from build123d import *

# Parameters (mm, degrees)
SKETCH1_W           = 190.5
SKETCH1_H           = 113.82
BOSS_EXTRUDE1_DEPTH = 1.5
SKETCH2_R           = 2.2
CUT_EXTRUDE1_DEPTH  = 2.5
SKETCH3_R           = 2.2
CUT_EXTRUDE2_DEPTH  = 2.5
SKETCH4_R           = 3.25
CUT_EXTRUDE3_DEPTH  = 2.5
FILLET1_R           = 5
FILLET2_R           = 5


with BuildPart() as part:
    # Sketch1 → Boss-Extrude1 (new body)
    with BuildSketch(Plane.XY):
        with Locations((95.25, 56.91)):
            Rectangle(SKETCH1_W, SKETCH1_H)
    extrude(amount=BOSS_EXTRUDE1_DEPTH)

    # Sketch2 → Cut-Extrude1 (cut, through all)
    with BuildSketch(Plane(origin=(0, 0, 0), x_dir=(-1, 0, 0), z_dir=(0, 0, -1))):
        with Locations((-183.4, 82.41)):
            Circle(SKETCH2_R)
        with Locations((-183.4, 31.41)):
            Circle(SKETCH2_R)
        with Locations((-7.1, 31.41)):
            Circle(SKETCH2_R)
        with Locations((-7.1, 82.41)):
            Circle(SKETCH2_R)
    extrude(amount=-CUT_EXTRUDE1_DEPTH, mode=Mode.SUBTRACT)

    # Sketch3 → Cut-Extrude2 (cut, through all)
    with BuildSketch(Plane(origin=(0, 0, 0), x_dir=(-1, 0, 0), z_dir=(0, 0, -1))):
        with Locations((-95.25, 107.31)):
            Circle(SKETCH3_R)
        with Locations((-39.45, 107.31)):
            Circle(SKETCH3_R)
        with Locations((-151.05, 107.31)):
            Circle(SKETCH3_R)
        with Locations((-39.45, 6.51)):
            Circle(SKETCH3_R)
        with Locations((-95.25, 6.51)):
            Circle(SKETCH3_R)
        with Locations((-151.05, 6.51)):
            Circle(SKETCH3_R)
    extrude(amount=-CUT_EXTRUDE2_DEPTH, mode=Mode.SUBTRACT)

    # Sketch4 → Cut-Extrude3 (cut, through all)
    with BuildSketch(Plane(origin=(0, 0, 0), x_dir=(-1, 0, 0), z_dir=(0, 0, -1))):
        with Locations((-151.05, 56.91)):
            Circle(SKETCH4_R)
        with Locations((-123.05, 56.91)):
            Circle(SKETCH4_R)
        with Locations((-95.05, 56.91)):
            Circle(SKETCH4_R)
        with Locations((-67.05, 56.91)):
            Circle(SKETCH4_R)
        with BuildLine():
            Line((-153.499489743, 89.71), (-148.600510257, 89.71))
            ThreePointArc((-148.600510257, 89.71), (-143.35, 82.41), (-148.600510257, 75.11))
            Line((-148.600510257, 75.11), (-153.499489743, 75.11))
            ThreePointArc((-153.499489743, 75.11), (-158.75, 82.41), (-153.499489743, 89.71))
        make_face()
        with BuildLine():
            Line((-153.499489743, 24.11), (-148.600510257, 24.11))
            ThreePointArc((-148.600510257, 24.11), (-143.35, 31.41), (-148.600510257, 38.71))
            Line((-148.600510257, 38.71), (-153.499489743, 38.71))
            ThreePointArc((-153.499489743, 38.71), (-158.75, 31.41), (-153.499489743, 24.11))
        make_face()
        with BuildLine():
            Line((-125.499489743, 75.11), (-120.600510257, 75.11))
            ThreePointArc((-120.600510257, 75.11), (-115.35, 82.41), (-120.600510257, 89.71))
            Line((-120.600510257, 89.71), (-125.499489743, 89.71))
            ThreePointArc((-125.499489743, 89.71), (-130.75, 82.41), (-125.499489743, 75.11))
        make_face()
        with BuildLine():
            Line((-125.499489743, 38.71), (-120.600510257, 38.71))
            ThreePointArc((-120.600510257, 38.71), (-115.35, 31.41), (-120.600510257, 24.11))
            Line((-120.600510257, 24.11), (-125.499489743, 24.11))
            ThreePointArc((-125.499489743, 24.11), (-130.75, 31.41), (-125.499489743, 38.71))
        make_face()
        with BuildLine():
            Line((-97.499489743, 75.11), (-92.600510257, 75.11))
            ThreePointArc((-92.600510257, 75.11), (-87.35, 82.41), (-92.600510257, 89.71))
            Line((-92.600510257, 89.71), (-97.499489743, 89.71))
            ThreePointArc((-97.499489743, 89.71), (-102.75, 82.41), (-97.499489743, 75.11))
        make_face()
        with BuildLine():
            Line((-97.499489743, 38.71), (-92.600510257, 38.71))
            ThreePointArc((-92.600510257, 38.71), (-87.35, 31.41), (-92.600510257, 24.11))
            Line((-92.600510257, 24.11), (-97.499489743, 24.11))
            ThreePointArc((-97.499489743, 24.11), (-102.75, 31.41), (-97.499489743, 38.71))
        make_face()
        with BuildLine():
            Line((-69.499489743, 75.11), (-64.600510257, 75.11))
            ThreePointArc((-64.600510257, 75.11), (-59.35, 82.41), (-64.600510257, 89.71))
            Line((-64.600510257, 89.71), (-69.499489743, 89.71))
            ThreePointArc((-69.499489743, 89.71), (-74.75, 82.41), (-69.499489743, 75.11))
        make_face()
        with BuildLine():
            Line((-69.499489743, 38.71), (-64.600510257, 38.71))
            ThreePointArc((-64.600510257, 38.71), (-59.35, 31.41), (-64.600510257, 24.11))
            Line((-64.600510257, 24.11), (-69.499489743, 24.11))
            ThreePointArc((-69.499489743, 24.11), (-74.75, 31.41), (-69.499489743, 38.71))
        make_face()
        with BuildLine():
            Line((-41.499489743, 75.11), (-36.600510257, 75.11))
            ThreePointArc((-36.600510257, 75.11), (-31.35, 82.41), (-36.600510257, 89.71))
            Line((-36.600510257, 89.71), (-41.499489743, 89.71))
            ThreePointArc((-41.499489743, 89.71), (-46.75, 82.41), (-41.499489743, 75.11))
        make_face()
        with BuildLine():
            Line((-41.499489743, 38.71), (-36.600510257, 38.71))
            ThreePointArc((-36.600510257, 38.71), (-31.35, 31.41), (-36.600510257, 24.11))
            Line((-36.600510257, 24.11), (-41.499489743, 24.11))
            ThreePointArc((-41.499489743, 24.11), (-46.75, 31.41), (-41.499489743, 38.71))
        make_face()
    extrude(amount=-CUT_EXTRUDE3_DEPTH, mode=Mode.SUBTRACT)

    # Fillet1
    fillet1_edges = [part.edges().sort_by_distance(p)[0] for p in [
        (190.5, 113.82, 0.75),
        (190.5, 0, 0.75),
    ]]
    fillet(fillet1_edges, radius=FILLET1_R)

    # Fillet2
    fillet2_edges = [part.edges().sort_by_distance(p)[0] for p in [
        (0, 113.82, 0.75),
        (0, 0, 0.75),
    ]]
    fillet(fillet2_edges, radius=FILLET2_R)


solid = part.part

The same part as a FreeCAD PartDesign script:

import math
import FreeCAD as App
import Part
import Sketcher

V = App.Vector
Q = App.Units.Quantity


def edges_at(feature, points):
    """Names of the edges that pass closest to the given points."""
    edges = feature.Shape.Edges
    near = lambda p: min(range(len(edges)), key=lambda i: edges[i].distToShape(Part.Vertex(*p))[0])
    return sorted({f"Edge{near(p) + 1}" for p in points})


def add_polygon(sketch, points):
    """Adds a closed chain of lines whose ends are joined by coincident constraints."""
    first, n = sketch.GeometryCount, len(points)
    for a, b in zip(points, points[1:] + points[:1]):
        sketch.addGeometry(Part.LineSegment(App.Vector(*a, 0), App.Vector(*b, 0)), False)
    for i in range(n):
        sketch.addConstraint(Sketcher.Constraint("Coincident", first + i, 2, first + (i + 1) % n, 1))

doc = App.newDocument("Part")
body = doc.addObject("PartDesign::Body", "Body")

# Sketch on XY plane
sketch1 = body.newObject("Sketcher::SketchObject", "Sketch")
sketch1.AttachmentSupport = (doc.getObject("XY_Plane"), [""])
sketch1.MapMode = "FlatFace"
add_polygon(sketch1, [(0, 114), (0, 0), (190, 0), (190, 114)])  # lines 0-3
sketch1.addConstraint([
    Sketcher.Constraint("Vertical", 0),
    Sketcher.Constraint("Horizontal", 1),
    Sketcher.Constraint("Vertical", 2),
    Sketcher.Constraint("Horizontal", 3),
    Sketcher.Constraint("Coincident", 0, 2, -1, 1),
    Sketcher.Constraint("DistanceX", 1, 1, 1, 2, Q("190.5 mm")),
    Sketcher.Constraint("DistanceY", 0, 2, 0, 1, Q("113.82 mm")),
])
pad1 = body.newObject("PartDesign::Pad", "Pad")
pad1.Profile = sketch1
pad1.Length = 1.5

# Sketch on XY plane
sketch2 = body.newObject("Sketcher::SketchObject", "Sketch001")
sketch2.AttachmentSupport = (doc.getObject("XY_Plane"), [""])
sketch2.MapMode = "FlatFace"
sketch2.addGeometry([
    Part.Circle(V(183.4, 82.4, 0), V(0, 0, 1), 2.2),
    Part.Circle(V(183.4, 31.4, 0), V(0, 0, 1), 2.2),
    Part.Circle(V(7.1, 31.4, 0), V(0, 0, 1), 2.2),
    Part.Circle(V(7.1, 82.4, 0), V(0, 0, 1), 2.2),
], False)
sketch2.addConstraint([
    Sketcher.Constraint("Equal", 0, 1),
    Sketcher.Constraint("Equal", 1, 2),
    Sketcher.Constraint("Equal", 2, 3),
    Sketcher.Constraint("Horizontal", 1, 3, 2, 3),
    Sketcher.Constraint("Horizontal", 0, 3, 3, 3),
    Sketcher.Constraint("Vertical", 0, 3, 1, 3),
    Sketcher.Constraint("Vertical", 2, 3, 3, 3),
    Sketcher.Constraint("Diameter", 0, Q("4.4 mm")),
    Sketcher.Constraint("DistanceY", 1, 3, 0, 3, Q("51 mm")),
    Sketcher.Constraint("DistanceX", -1, 1, 0, 3, Q("183.4 mm")),
    Sketcher.Constraint("DistanceX", -1, 1, 2, 3, Q("7.1 mm")),
    Sketcher.Constraint("DistanceY", -1, 1, 0, 3, Q("82.41 mm")),
])
pocket1 = body.newObject("PartDesign::Pocket", "Pocket")
pocket1.Profile = sketch2
pocket1.Type = "ThroughAll"
pocket1.Reversed = True

# Sketch on XY plane
sketch3 = body.newObject("Sketcher::SketchObject", "Sketch002")
sketch3.AttachmentSupport = (doc.getObject("XY_Plane"), [""])
sketch3.MapMode = "FlatFace"
sketch3.addGeometry([
    Part.Circle(V(95.2, 107.3, 0), V(0, 0, 1), 2.2),  # 0
    Part.Circle(V(39.5, 107.3, 0), V(0, 0, 1), 2.2),  # 1
    Part.Circle(V(151.1, 107.3, 0), V(0, 0, 1), 2.2),  # 2
    Part.Circle(V(39.5, 6.5, 0), V(0, 0, 1), 2.2),  # 3
    Part.Circle(V(95.2, 6.5, 0), V(0, 0, 1), 2.2),  # 4
    Part.Circle(V(151.1, 6.5, 0), V(0, 0, 1), 2.2),  # 5
], False)
sketch3.addConstraint([
    Sketcher.Constraint("Equal", 0, 1),
    Sketcher.Constraint("Equal", 1, 2),
    Sketcher.Constraint("Equal", 2, 3),
    Sketcher.Constraint("Equal", 3, 4),
    Sketcher.Constraint("Equal", 4, 5),
    Sketcher.Constraint("Horizontal", 0, 3, 1, 3),
    Sketcher.Constraint("Horizontal", 1, 3, 2, 3),
    Sketcher.Constraint("Horizontal", 3, 3, 4, 3),
    Sketcher.Constraint("Horizontal", 4, 3, 5, 3),
    Sketcher.Constraint("Vertical", 1, 3, 3, 3),
    Sketcher.Constraint("Vertical", 0, 3, 4, 3),
    Sketcher.Constraint("Vertical", 2, 3, 5, 3),
    Sketcher.Constraint("Diameter", 0, Q("4.4 mm")),
    Sketcher.Constraint("DistanceX", 1, 3, 0, 3, Q("55.8 mm")),
    Sketcher.Constraint("DistanceX", 0, 3, 2, 3, Q("55.8 mm")),
    Sketcher.Constraint("DistanceY", 3, 3, 1, 3, Q("100.8 mm")),
    Sketcher.Constraint("DistanceX", -1, 1, 0, 3, Q("95.25 mm")),
    Sketcher.Constraint("DistanceY", -1, 1, 0, 3, Q("107.31 mm")),
])
pocket2 = body.newObject("PartDesign::Pocket", "Pocket001")
pocket2.Profile = sketch3
pocket2.Type = "ThroughAll"
pocket2.Reversed = True

# Sketch on XY plane
sketch4 = body.newObject("Sketcher::SketchObject", "Sketch003")
sketch4.AttachmentSupport = (doc.getObject("XY_Plane"), [""])
sketch4.MapMode = "FlatFace"
sketch4.addGeometry([
    Part.Circle(V(151.1, 56.9, 0), V(0, 0, 1), 3.2),  # 0
    Part.Circle(V(123, 56.9, 0), V(0, 0, 1), 3.2),  # 1
    Part.Circle(V(95, 56.9, 0), V(0, 0, 1), 3.2),  # 2
    Part.Circle(V(67, 56.9, 0), V(0, 0, 1), 3.2),  # 3
    Part.LineSegment(V(148.6, 89.7, 0), V(153.5, 89.7, 0)),  # 4
    Part.ArcOfCircle(Part.Circle(V(151.1, 82.4, 0), V(0, 0, 1), 7.7), math.radians(-71), math.radians(71)),  # 5
    Part.LineSegment(V(153.5, 75.1, 0), V(148.6, 75.1, 0)),  # 6
    Part.ArcOfCircle(Part.Circle(V(151.1, 82.4, 0), V(0, 0, 1), 7.7), math.radians(109), math.radians(251)),  # 7
    Part.LineSegment(V(153.5, 24.1, 0), V(148.6, 24.1, 0)),  # 8
    Part.ArcOfCircle(Part.Circle(V(151.1, 31.4, 0), V(0, 0, 1), 7.7), math.radians(109), math.radians(251)),  # 9
    Part.LineSegment(V(148.6, 38.7, 0), V(153.5, 38.7, 0)),  # 10
    Part.ArcOfCircle(Part.Circle(V(151.1, 31.4, 0), V(0, 0, 1), 7.7), math.radians(-71), math.radians(71)),  # 11
    Part.LineSegment(V(125.5, 75.1, 0), V(120.6, 75.1, 0)),  # 12
    Part.ArcOfCircle(Part.Circle(V(123, 82.4, 0), V(0, 0, 1), 7.7), math.radians(109), math.radians(251)),  # 13
    Part.LineSegment(V(120.6, 89.7, 0), V(125.5, 89.7, 0)),  # 14
    Part.ArcOfCircle(Part.Circle(V(123, 82.4, 0), V(0, 0, 1), 7.7), math.radians(-71), math.radians(71)),  # 15
    Part.LineSegment(V(120.6, 38.7, 0), V(125.5, 38.7, 0)),  # 16
    Part.ArcOfCircle(Part.Circle(V(123, 31.4, 0), V(0, 0, 1), 7.7), math.radians(-71), math.radians(71)),  # 17
    Part.LineSegment(V(125.5, 24.1, 0), V(120.6, 24.1, 0)),  # 18
    Part.ArcOfCircle(Part.Circle(V(123, 31.4, 0), V(0, 0, 1), 7.7), math.radians(109), math.radians(251)),  # 19
    Part.LineSegment(V(97.5, 75.1, 0), V(92.6, 75.1, 0)),  # 20
    Part.ArcOfCircle(Part.Circle(V(95, 82.4, 0), V(0, 0, 1), 7.7), math.radians(109), math.radians(251)),  # 21
    Part.LineSegment(V(92.6, 89.7, 0), V(97.5, 89.7, 0)),  # 22
    Part.ArcOfCircle(Part.Circle(V(95, 82.4, 0), V(0, 0, 1), 7.7), math.radians(-71), math.radians(71)),  # 23
    Part.LineSegment(V(92.6, 38.7, 0), V(97.5, 38.7, 0)),  # 24
    Part.ArcOfCircle(Part.Circle(V(95, 31.4, 0), V(0, 0, 1), 7.7), math.radians(-71), math.radians(71)),  # 25
    Part.LineSegment(V(97.5, 24.1, 0), V(92.6, 24.1, 0)),  # 26
    Part.ArcOfCircle(Part.Circle(V(95, 31.4, 0), V(0, 0, 1), 7.7), math.radians(109), math.radians(251)),  # 27
    Part.LineSegment(V(69.5, 75.1, 0), V(64.6, 75.1, 0)),  # 28
    Part.ArcOfCircle(Part.Circle(V(67, 82.4, 0), V(0, 0, 1), 7.7), math.radians(109), math.radians(251)),  # 29
    Part.LineSegment(V(64.6, 89.7, 0), V(69.5, 89.7, 0)),  # 30
    Part.ArcOfCircle(Part.Circle(V(67, 82.4, 0), V(0, 0, 1), 7.7), math.radians(-71), math.radians(71)),  # 31
    Part.LineSegment(V(64.6, 38.7, 0), V(69.5, 38.7, 0)),  # 32
    Part.ArcOfCircle(Part.Circle(V(67, 31.4, 0), V(0, 0, 1), 7.7), math.radians(-71), math.radians(71)),  # 33
    Part.LineSegment(V(69.5, 24.1, 0), V(64.6, 24.1, 0)),  # 34
    Part.ArcOfCircle(Part.Circle(V(67, 31.4, 0), V(0, 0, 1), 7.7), math.radians(109), math.radians(251)),  # 35
    Part.LineSegment(V(41.5, 75.1, 0), V(36.6, 75.1, 0)),  # 36
    Part.ArcOfCircle(Part.Circle(V(39, 82.4, 0), V(0, 0, 1), 7.7), math.radians(109), math.radians(251)),  # 37
    Part.LineSegment(V(36.6, 89.7, 0), V(41.5, 89.7, 0)),  # 38
    Part.ArcOfCircle(Part.Circle(V(39, 82.4, 0), V(0, 0, 1), 7.7), math.radians(-71), math.radians(71)),  # 39
    Part.LineSegment(V(36.6, 38.7, 0), V(41.5, 38.7, 0)),  # 40
    Part.ArcOfCircle(Part.Circle(V(39, 31.4, 0), V(0, 0, 1), 7.7), math.radians(-71), math.radians(71)),  # 41
    Part.LineSegment(V(41.5, 24.1, 0), V(36.6, 24.1, 0)),  # 42
    Part.ArcOfCircle(Part.Circle(V(39, 31.4, 0), V(0, 0, 1), 7.7), math.radians(109), math.radians(251)),  # 43
], False)
sketch4.addConstraint([
    Sketcher.Constraint("Coincident", 4, 2, 5, 2),
    Sketcher.Constraint("Coincident", 5, 1, 6, 1),
    Sketcher.Constraint("Coincident", 6, 2, 7, 2),
    Sketcher.Constraint("Coincident", 7, 1, 4, 1),
    Sketcher.Constraint("Coincident", 8, 2, 9, 2),
    Sketcher.Constraint("Coincident", 9, 1, 10, 1),
    Sketcher.Constraint("Coincident", 10, 2, 11, 2),
    Sketcher.Constraint("Coincident", 11, 1, 8, 1),
    Sketcher.Constraint("Coincident", 12, 2, 13, 2),
    Sketcher.Constraint("Coincident", 13, 1, 14, 1),
    Sketcher.Constraint("Coincident", 14, 2, 15, 2),
    Sketcher.Constraint("Coincident", 15, 1, 12, 1),
    Sketcher.Constraint("Coincident", 16, 2, 17, 2),
    Sketcher.Constraint("Coincident", 17, 1, 18, 1),
    Sketcher.Constraint("Coincident", 18, 2, 19, 2),
    Sketcher.Constraint("Coincident", 19, 1, 16, 1),
    Sketcher.Constraint("Coincident", 20, 2, 21, 2),
    Sketcher.Constraint("Coincident", 21, 1, 22, 1),
    Sketcher.Constraint("Coincident", 22, 2, 23, 2),
    Sketcher.Constraint("Coincident", 23, 1, 20, 1),
    Sketcher.Constraint("Coincident", 24, 2, 25, 2),
    Sketcher.Constraint("Coincident", 25, 1, 26, 1),
    Sketcher.Constraint("Coincident", 26, 2, 27, 2),
    Sketcher.Constraint("Coincident", 27, 1, 24, 1),
    Sketcher.Constraint("Coincident", 28, 2, 29, 2),
    Sketcher.Constraint("Coincident", 29, 1, 30, 1),
    Sketcher.Constraint("Coincident", 30, 2, 31, 2),
    Sketcher.Constraint("Coincident", 31, 1, 28, 1),
    Sketcher.Constraint("Coincident", 32, 2, 33, 2),
    Sketcher.Constraint("Coincident", 33, 1, 34, 1),
    Sketcher.Constraint("Coincident", 34, 2, 35, 2),
    Sketcher.Constraint("Coincident", 35, 1, 32, 1),
    Sketcher.Constraint("Coincident", 36, 2, 37, 2),
    Sketcher.Constraint("Coincident", 37, 1, 38, 1),
    Sketcher.Constraint("Coincident", 38, 2, 39, 2),
    Sketcher.Constraint("Coincident", 39, 1, 36, 1),
    Sketcher.Constraint("Coincident", 40, 2, 41, 2),
    Sketcher.Constraint("Coincident", 41, 1, 42, 1),
    Sketcher.Constraint("Coincident", 42, 2, 43, 2),
    Sketcher.Constraint("Coincident", 43, 1, 40, 1),
    Sketcher.Constraint("Horizontal", 4),
    Sketcher.Constraint("Horizontal", 6),
    Sketcher.Constraint("Horizontal", 8),
    Sketcher.Constraint("Horizontal", 10),
    Sketcher.Constraint("Horizontal", 12),
    Sketcher.Constraint("Horizontal", 14),
    Sketcher.Constraint("Horizontal", 16),
    Sketcher.Constraint("Horizontal", 18),
    Sketcher.Constraint("Horizontal", 20),
    Sketcher.Constraint("Horizontal", 22),
    Sketcher.Constraint("Horizontal", 24),
    Sketcher.Constraint("Horizontal", 26),
    Sketcher.Constraint("Horizontal", 28),
    Sketcher.Constraint("Horizontal", 30),
    Sketcher.Constraint("Horizontal", 32),
    Sketcher.Constraint("Horizontal", 34),
    Sketcher.Constraint("Horizontal", 36),
    Sketcher.Constraint("Horizontal", 38),
    Sketcher.Constraint("Horizontal", 40),
    Sketcher.Constraint("Horizontal", 42),
    Sketcher.Constraint("Coincident", 7, 3, 5, 3),
    Sketcher.Constraint("Coincident", 11, 3, 9, 3),
    Sketcher.Constraint("Coincident", 15, 3, 13, 3),
    Sketcher.Constraint("Coincident", 19, 3, 17, 3),
    Sketcher.Constraint("Coincident", 23, 3, 21, 3),
    Sketcher.Constraint("Coincident", 27, 3, 25, 3),
    Sketcher.Constraint("Coincident", 31, 3, 29, 3),
    Sketcher.Constraint("Coincident", 35, 3, 33, 3),
    Sketcher.Constraint("Coincident", 39, 3, 37, 3),
    Sketcher.Constraint("Coincident", 43, 3, 41, 3),
    Sketcher.Constraint("Equal", 0, 1),
    Sketcher.Constraint("Equal", 1, 2),
    Sketcher.Constraint("Equal", 2, 3),
    Sketcher.Constraint("Equal", 5, 7),
    Sketcher.Constraint("Equal", 7, 9),
    Sketcher.Constraint("Equal", 9, 11),
    Sketcher.Constraint("Equal", 11, 13),
    Sketcher.Constraint("Equal", 13, 15),
    Sketcher.Constraint("Equal", 15, 17),
    Sketcher.Constraint("Equal", 17, 19),
    Sketcher.Constraint("Equal", 19, 21),
    Sketcher.Constraint("Equal", 21, 23),
    Sketcher.Constraint("Equal", 23, 25),
    Sketcher.Constraint("Equal", 25, 27),
    Sketcher.Constraint("Equal", 27, 29),
    Sketcher.Constraint("Equal", 29, 31),
    Sketcher.Constraint("Equal", 31, 33),
    Sketcher.Constraint("Equal", 33, 35),
    Sketcher.Constraint("Equal", 35, 37),
    Sketcher.Constraint("Equal", 37, 39),
    Sketcher.Constraint("Equal", 39, 41),
    Sketcher.Constraint("Equal", 41, 43),
    Sketcher.Constraint("Horizontal", 0, 3, 1, 3),
    Sketcher.Constraint("Horizontal", 1, 3, 2, 3),
    Sketcher.Constraint("Horizontal", 2, 3, 3, 3),
    Sketcher.Constraint("Horizontal", 7, 3, 13, 3),
    Sketcher.Constraint("Horizontal", 11, 3, 17, 3),
    Sketcher.Constraint("Horizontal", 15, 3, 21, 3),
    Sketcher.Constraint("Horizontal", 19, 3, 25, 3),
    Sketcher.Constraint("Horizontal", 23, 3, 29, 3),
    Sketcher.Constraint("Horizontal", 27, 3, 33, 3),
    Sketcher.Constraint("Horizontal", 31, 3, 37, 3),
    Sketcher.Constraint("Horizontal", 35, 3, 41, 3),
    Sketcher.Constraint("Horizontal", 6, 2, 12, 2),
    Sketcher.Constraint("Horizontal", 7, 1, 13, 1),
    Sketcher.Constraint("Horizontal", 10, 2, 16, 2),
    Sketcher.Constraint("Horizontal", 11, 1, 17, 1),
    Sketcher.Constraint("Horizontal", 15, 1, 20, 2),
    Sketcher.Constraint("Horizontal", 14, 2, 21, 1),
    Sketcher.Constraint("Horizontal", 19, 1, 24, 2),
    Sketcher.Constraint("Horizontal", 18, 2, 25, 1),
    Sketcher.Constraint("Horizontal", 23, 1, 28, 2),
    Sketcher.Constraint("Horizontal", 22, 2, 29, 1),
    Sketcher.Constraint("Horizontal", 27, 1, 32, 2),
    Sketcher.Constraint("Horizontal", 26, 2, 33, 1),
    Sketcher.Constraint("Horizontal", 31, 1, 36, 2),
    Sketcher.Constraint("Horizontal", 30, 2, 37, 1),
    Sketcher.Constraint("Horizontal", 35, 1, 40, 2),
    Sketcher.Constraint("Horizontal", 34, 2, 41, 1),
    Sketcher.Constraint("Vertical", 0, 3, 5, 3),
    Sketcher.Constraint("Vertical", 7, 3, 9, 3),
    Sketcher.Constraint("Vertical", 1, 3, 13, 3),
    Sketcher.Constraint("Vertical", 15, 3, 17, 3),
    Sketcher.Constraint("Vertical", 2, 3, 21, 3),
    Sketcher.Constraint("Vertical", 23, 3, 25, 3),
    Sketcher.Constraint("Vertical", 3, 3, 29, 3),
    Sketcher.Constraint("Vertical", 31, 3, 33, 3),
    Sketcher.Constraint("Vertical", 39, 3, 41, 3),
    Sketcher.Constraint("Vertical", 4, 2, 5, 1),
    Sketcher.Constraint("Vertical", 7, 1, 8, 2),
    Sketcher.Constraint("Vertical", 8, 2, 9, 1),
    Sketcher.Constraint("Diameter", 0, Q("6.5 mm")),
    Sketcher.Constraint("Radius", 5, Q("7.7 mm")),
    Sketcher.Constraint("DistanceX", -1, 1, 0, 3, Q("151.05 mm")),
    Sketcher.Constraint("DistanceY", -1, 1, 0, 3, Q("56.91 mm")),
    Sketcher.Constraint("DistanceX", -1, 1, 1, 3, Q("123.05 mm")),
    Sketcher.Constraint("DistanceX", -1, 1, 2, 3, Q("95.05 mm")),
    Sketcher.Constraint("DistanceX", -1, 1, 3, 3, Q("67.05 mm")),
    Sketcher.Constraint("DistanceY", -1, 1, 5, 3, Q("82.41 mm")),
    Sketcher.Constraint("DistanceY", -1, 1, 9, 3, Q("31.41 mm")),
    Sketcher.Constraint("DistanceX", -1, 1, 37, 3, Q("39.05 mm")),
    Sketcher.Constraint("DistanceY", -1, 1, 4, 2, Q("89.71 mm")),
])
pocket3 = body.newObject("PartDesign::Pocket", "Pocket002")
pocket3.Profile = sketch4
pocket3.Type = "ThroughAll"
pocket3.Reversed = True
doc.recompute()

fillet = body.newObject("PartDesign::Fillet", "Fillet")
fillet.Base = (pocket3, edges_at(pocket3, [(190.5, 113.82, 0.75), (190.5, 0, 0.75)]))
fillet.Radius = 5
doc.recompute()

fillet2 = body.newObject("PartDesign::Fillet", "Fillet001")
fillet2.Base = (fillet, edges_at(fillet, [(0, 113.82, 0.75), (0, 0, 0.75)]))
fillet2.Radius = 5

doc.recompute()
